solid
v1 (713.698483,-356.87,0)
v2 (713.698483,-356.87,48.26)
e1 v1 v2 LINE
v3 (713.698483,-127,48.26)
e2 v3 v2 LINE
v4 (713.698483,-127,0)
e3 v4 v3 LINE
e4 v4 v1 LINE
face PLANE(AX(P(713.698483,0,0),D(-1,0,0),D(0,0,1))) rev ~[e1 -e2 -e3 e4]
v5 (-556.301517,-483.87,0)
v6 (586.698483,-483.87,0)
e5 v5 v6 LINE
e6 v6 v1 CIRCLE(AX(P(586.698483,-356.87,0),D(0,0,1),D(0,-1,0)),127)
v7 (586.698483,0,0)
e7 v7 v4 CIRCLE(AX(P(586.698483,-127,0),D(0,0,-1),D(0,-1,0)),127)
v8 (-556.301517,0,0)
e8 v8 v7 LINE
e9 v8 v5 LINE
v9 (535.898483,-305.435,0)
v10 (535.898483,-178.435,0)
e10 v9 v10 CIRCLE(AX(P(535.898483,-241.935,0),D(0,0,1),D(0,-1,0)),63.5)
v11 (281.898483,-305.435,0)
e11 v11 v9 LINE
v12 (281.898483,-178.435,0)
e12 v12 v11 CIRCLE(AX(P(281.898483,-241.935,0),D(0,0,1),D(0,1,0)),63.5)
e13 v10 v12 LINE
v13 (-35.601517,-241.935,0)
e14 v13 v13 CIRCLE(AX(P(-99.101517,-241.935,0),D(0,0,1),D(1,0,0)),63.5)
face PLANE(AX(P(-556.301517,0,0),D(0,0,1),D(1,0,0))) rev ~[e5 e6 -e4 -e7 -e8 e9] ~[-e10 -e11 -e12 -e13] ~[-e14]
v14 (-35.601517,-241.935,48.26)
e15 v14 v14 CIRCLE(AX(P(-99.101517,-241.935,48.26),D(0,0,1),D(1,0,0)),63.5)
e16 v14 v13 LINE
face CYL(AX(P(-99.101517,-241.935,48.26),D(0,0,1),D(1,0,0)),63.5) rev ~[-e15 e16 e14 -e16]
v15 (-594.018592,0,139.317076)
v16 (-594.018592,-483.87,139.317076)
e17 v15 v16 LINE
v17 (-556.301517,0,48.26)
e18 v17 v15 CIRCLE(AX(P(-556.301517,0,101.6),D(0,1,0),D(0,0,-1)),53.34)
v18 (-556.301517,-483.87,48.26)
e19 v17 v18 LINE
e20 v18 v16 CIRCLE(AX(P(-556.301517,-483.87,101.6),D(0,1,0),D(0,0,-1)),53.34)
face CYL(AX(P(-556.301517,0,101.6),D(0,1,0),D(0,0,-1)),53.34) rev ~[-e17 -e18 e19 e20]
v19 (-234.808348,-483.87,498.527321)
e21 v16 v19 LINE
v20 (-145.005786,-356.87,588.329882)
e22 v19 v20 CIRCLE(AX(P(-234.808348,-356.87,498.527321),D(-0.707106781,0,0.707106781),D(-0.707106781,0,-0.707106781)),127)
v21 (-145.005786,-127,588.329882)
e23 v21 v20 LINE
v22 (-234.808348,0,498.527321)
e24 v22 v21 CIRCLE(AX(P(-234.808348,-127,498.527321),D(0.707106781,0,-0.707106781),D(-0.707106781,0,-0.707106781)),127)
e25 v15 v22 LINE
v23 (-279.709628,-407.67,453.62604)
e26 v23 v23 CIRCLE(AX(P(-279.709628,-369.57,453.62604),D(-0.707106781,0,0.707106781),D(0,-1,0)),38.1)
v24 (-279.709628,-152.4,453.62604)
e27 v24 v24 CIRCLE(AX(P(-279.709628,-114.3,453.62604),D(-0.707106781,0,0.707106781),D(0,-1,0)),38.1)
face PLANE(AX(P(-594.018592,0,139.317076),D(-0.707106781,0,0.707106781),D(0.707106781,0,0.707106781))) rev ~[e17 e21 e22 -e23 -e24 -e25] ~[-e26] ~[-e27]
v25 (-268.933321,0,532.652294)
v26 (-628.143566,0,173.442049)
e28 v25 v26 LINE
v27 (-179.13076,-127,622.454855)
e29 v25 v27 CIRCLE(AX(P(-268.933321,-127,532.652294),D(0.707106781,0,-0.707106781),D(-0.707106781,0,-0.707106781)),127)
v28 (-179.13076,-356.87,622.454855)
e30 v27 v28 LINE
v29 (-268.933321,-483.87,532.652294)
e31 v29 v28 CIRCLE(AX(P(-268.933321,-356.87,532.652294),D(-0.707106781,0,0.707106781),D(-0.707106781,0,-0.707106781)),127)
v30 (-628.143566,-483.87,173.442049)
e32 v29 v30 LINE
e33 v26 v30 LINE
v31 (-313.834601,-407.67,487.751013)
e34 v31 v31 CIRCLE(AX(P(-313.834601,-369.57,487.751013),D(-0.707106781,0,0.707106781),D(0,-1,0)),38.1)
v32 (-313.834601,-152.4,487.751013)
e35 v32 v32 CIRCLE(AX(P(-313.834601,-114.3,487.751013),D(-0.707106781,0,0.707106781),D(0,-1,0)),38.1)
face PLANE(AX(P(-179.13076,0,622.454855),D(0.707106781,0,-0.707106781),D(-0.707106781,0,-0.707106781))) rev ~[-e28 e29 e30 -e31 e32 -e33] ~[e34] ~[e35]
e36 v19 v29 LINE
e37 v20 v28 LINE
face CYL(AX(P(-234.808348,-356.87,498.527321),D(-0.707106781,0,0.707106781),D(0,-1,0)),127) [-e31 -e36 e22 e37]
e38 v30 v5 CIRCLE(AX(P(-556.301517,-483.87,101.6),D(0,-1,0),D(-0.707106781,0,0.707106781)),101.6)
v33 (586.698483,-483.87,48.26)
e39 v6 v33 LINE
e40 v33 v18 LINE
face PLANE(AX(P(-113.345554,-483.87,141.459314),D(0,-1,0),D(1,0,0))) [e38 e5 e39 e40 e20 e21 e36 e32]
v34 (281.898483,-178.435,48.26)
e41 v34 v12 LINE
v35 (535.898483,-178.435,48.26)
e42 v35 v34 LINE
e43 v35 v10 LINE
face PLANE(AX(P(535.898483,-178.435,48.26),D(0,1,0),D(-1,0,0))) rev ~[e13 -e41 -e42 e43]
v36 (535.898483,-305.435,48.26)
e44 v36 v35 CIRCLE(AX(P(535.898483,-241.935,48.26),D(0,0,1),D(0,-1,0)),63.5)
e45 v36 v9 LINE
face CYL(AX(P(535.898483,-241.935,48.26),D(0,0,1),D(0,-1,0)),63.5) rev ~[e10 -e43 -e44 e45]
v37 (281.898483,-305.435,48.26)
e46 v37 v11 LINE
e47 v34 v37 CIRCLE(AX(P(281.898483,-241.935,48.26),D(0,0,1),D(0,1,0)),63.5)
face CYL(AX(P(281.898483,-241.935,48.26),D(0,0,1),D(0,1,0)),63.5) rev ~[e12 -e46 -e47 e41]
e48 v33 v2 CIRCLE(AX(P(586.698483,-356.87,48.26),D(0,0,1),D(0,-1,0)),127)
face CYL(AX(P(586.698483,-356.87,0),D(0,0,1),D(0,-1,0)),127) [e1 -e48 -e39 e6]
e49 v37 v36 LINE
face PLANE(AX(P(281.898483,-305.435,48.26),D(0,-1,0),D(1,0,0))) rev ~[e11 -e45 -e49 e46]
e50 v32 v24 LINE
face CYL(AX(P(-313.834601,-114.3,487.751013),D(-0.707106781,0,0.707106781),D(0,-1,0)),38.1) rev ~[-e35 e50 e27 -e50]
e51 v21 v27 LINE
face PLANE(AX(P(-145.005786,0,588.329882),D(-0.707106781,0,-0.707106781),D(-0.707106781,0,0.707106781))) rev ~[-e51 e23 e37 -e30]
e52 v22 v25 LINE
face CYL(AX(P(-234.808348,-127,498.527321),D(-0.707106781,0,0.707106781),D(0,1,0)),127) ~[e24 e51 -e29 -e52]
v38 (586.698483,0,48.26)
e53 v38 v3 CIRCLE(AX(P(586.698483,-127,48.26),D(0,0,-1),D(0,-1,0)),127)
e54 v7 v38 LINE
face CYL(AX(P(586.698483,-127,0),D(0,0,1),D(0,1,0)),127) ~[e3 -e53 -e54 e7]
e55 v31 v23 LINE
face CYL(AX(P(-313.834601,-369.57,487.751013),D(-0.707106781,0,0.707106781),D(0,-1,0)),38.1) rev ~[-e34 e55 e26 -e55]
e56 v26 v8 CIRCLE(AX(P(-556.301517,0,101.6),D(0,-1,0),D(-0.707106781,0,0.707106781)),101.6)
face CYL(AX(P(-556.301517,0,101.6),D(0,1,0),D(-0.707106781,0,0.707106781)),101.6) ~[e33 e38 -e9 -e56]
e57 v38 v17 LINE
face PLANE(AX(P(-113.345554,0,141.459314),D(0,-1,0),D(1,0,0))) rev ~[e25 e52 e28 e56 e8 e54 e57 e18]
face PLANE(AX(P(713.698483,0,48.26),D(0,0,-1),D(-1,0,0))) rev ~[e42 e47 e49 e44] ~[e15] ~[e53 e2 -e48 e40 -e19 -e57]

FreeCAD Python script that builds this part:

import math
import FreeCAD as App
import Part
import Sketcher

V = App.Vector
Q = App.Units.Quantity


def edges_at(feature, points):
    """Names of the edges that pass closest to the given points."""
    edges = feature.Shape.Edges
    near = lambda p: min(range(len(edges)), key=lambda i: edges[i].distToShape(Part.Vertex(*p))[0])
    return sorted({f"Edge{near(p) + 1}" for p in points})

doc = App.newDocument("Part")
body = doc.addObject("PartDesign::Body", "Body")

# Sketch on XZ plane
sketch1 = doc.addObject("Sketcher::SketchObject", "Sketch")
body.addObject(sketch1)
sketch1.AttachmentSupport = (doc.XZ_Plane, [""])
sketch1.MapMode = "FlatFace"
sketch1.addGeometry(Part.LineSegment(V(-556.301517, 0, 0), V(713.698483, 0, 0)), False)
sketch1.addGeometry(Part.LineSegment(V(713.698483, 0, 0), V(713.698483, 48.26, 0)), False)
sketch1.addGeometry(Part.LineSegment(V(713.698483, 48.26, 0), V(-556.301517, 48.26, 0)), False)
sketch1.addGeometry(Part.ArcOfCircle(Part.Circle(V(-556.301517, 101.6, 0), V(0, 0, 1), 53.34), math.radians(135), math.radians(270)), False)
sketch1.addGeometry(Part.LineSegment(V(-594.018592, 139.317076, 0), V(-145.005786, 588.329882, 0)), False)
sketch1.addGeometry(Part.LineSegment(V(-145.005786, 588.329882, 0), V(-179.13076, 622.454855, 0)), False)
sketch1.addGeometry(Part.LineSegment(V(-179.13076, 622.454855, 0), V(-628.143566, 173.442049, 0)), False)
sketch1.addGeometry(Part.ArcOfCircle(Part.Circle(V(-556.301517, 101.6, 0), V(0, 0, 1), 101.6), math.radians(135), math.radians(270)), False)
sketch1.addConstraint(Sketcher.Constraint("Coincident", 0, 2, 1, 1))
sketch1.addConstraint(Sketcher.Constraint("Coincident", 1, 2, 2, 1))
sketch1.addConstraint(Sketcher.Constraint("Tangent", 2, 2, 3, 2))
sketch1.addConstraint(Sketcher.Constraint("Tangent", 3, 1, 4, 1))
sketch1.addConstraint(Sketcher.Constraint("Coincident", 4, 2, 5, 1))
sketch1.addConstraint(Sketcher.Constraint("Coincident", 5, 2, 6, 1))
sketch1.addConstraint(Sketcher.Constraint("Tangent", 6, 2, 7, 1))
sketch1.addConstraint(Sketcher.Constraint("Tangent", 7, 2, 0, 1))
sketch1.addConstraint(Sketcher.Constraint("Horizontal", 0))
sketch1.addConstraint(Sketcher.Constraint("Vertical", 1))
sketch1.addConstraint(Sketcher.Constraint("Horizontal", 2))
sketch1.addConstraint(Sketcher.Constraint("Coincident", 7, 3, 3, 3))
sketch1.addConstraint(Sketcher.Constraint("PointOnObject", 0, 2, -1))
sketch1.addConstraint(Sketcher.Constraint("Perpendicular", 4, 5))
sketch1.addConstraint(Sketcher.Constraint("Perpendicular", 5, 6))
sketch1.addConstraint(Sketcher.Constraint("Radius", 7, Q("4 in")))
sketch1.addConstraint(Sketcher.Constraint("Radius", 3, Q("2.1 in")))
sketch1.addConstraint(Sketcher.Constraint("DistanceX", 0, 1, 0, 2, Q("50 in")))
sketch1.addConstraint(Sketcher.Constraint("Distance", 4, Q("25 in")))
sketch1.addConstraint(Sketcher.Constraint("Angle", 4, Q("45 deg")))
sketch1.addConstraint(Sketcher.Constraint("DistanceX", 5, 2, -1, 1, Q("179.13076 mm")))
pad1 = doc.addObject("PartDesign::Pad", "Pad")
body.addObject(pad1)
pad1.Profile = sketch1
pad1.Length = Q("19.05 in")

# Sketch on an angled plane
sketch2 = doc.addObject("Sketcher::SketchObject", "Sketch001")
body.addObject(sketch2)
sketch2.Placement = App.Placement(V(-400.792807, 0, 400.792807), App.Rotation(V(0, -1, 0), V(0.707106781, 0, 0.707106781), V(-0.707106781, 0, 0.707106781), "ZXY"))
sketch2.addGeometry(Part.Circle(V(114.3, 122.977474, 0), V(0, 0, 1), 38.1), False)
sketch2.addGeometry(Part.Circle(V(369.57, 122.977474, 0), V(0, 0, 1), 38.1), False)
sketch2.addConstraint(Sketcher.Constraint("Equal", 0, 1))
sketch2.addConstraint(Sketcher.Constraint("Horizontal", 0, 3, 1, 3))
sketch2.addConstraint(Sketcher.Constraint("Diameter", 0, Q("3 in")))
sketch2.addConstraint(Sketcher.Constraint("DistanceX", -1, 1, 0, 3, Q("4.5 in")))
sketch2.addConstraint(Sketcher.Constraint("DistanceX", -1, 1, 1, 3, Q("14.55 in")))
sketch2.addConstraint(Sketcher.Constraint("DistanceY", -1, 1, 0, 3, Q("122.977474 mm")))
pocket1 = doc.addObject("PartDesign::Pocket", "Pocket")
body.addObject(pocket1)
pocket1.Profile = sketch2
pocket1.Length = Q("1.9 in")

# Sketch on XY plane
sketch3 = doc.addObject("Sketcher::SketchObject", "Sketch002")
body.addObject(sketch3)
sketch3.AttachmentSupport = (doc.XY_Plane, [""])
sketch3.MapMode = "FlatFace"
sketch3.AttachmentOffset = App.Placement(V(0, 0, 1.9 * 25.4), App.Rotation())
sketch3.addGeometry(Part.LineSegment(V(281.898483, -305.435, 0), V(535.898483, -305.435, 0)), False)
sketch3.addGeometry(Part.ArcOfCircle(Part.Circle(V(535.898483, -241.935, 0), V(0, 0, 1), 63.5), math.radians(-90), math.radians(90)), False)
sketch3.addGeometry(Part.LineSegment(V(535.898483, -178.435, 0), V(281.898483, -178.435, 0)), False)
sketch3.addGeometry(Part.ArcOfCircle(Part.Circle(V(281.898483, -241.935, 0), V(0, 0, 1), 63.5), math.radians(90), math.radians(270)), False)
sketch3.addGeometry(Part.Circle(V(-99.101517, -241.935, 0), V(0, 0, 1), 63.5), False)
sketch3.addConstraint(Sketcher.Constraint("Tangent", 0, 2, 1, 1))
sketch3.addConstraint(Sketcher.Constraint("Tangent", 1, 2, 2, 1))
sketch3.addConstraint(Sketcher.Constraint("Tangent", 2, 2, 3, 1))
sketch3.addConstraint(Sketcher.Constraint("Tangent", 3, 2, 0, 1))
sketch3.addConstraint(Sketcher.Constraint("Horizontal", 0))
sketch3.addConstraint(Sketcher.Constraint("Horizontal", 2))
sketch3.addConstraint(Sketcher.Constraint("Equal", 3, 4))
sketch3.addConstraint(Sketcher.Constraint("Horizontal", 3, 3, 4, 3))
sketch3.addConstraint(Sketcher.Constraint("Diameter", 4, Q("5 in")))
sketch3.addConstraint(Sketcher.Constraint("DistanceX", 0, 1, 0, 2, Q("10 in")))
sketch3.addConstraint(Sketcher.Constraint("DistanceX", 4, 3, 3, 3, Q("15 in")))
sketch3.addConstraint(Sketcher.Constraint("DistanceY", 1, 3, -1, 1, Q("9.525 in")))
sketch3.addConstraint(Sketcher.Constraint("DistanceX", -1, 1, 1, 3, Q("535.898483 mm")))
pocket2 = doc.addObject("PartDesign::Pocket", "Pocket001")
body.addObject(pocket2)
pocket2.Profile = sketch3
pocket2.Type = "ThroughAll"
doc.recompute()

fillet = doc.addObject("PartDesign::Fillet", "Fillet")
body.addObject(fillet)
fillet.Base = (pocket2, edges_at(pocket2, [
    (713.698, -483.87, 24.13),
    (713.698, 0, 24.13),
    (-162.068, 0, 605.392),
    (-162.068, -483.87, 605.392),
]))
fillet.Radius = Q("5 in")

doc.recompute()
